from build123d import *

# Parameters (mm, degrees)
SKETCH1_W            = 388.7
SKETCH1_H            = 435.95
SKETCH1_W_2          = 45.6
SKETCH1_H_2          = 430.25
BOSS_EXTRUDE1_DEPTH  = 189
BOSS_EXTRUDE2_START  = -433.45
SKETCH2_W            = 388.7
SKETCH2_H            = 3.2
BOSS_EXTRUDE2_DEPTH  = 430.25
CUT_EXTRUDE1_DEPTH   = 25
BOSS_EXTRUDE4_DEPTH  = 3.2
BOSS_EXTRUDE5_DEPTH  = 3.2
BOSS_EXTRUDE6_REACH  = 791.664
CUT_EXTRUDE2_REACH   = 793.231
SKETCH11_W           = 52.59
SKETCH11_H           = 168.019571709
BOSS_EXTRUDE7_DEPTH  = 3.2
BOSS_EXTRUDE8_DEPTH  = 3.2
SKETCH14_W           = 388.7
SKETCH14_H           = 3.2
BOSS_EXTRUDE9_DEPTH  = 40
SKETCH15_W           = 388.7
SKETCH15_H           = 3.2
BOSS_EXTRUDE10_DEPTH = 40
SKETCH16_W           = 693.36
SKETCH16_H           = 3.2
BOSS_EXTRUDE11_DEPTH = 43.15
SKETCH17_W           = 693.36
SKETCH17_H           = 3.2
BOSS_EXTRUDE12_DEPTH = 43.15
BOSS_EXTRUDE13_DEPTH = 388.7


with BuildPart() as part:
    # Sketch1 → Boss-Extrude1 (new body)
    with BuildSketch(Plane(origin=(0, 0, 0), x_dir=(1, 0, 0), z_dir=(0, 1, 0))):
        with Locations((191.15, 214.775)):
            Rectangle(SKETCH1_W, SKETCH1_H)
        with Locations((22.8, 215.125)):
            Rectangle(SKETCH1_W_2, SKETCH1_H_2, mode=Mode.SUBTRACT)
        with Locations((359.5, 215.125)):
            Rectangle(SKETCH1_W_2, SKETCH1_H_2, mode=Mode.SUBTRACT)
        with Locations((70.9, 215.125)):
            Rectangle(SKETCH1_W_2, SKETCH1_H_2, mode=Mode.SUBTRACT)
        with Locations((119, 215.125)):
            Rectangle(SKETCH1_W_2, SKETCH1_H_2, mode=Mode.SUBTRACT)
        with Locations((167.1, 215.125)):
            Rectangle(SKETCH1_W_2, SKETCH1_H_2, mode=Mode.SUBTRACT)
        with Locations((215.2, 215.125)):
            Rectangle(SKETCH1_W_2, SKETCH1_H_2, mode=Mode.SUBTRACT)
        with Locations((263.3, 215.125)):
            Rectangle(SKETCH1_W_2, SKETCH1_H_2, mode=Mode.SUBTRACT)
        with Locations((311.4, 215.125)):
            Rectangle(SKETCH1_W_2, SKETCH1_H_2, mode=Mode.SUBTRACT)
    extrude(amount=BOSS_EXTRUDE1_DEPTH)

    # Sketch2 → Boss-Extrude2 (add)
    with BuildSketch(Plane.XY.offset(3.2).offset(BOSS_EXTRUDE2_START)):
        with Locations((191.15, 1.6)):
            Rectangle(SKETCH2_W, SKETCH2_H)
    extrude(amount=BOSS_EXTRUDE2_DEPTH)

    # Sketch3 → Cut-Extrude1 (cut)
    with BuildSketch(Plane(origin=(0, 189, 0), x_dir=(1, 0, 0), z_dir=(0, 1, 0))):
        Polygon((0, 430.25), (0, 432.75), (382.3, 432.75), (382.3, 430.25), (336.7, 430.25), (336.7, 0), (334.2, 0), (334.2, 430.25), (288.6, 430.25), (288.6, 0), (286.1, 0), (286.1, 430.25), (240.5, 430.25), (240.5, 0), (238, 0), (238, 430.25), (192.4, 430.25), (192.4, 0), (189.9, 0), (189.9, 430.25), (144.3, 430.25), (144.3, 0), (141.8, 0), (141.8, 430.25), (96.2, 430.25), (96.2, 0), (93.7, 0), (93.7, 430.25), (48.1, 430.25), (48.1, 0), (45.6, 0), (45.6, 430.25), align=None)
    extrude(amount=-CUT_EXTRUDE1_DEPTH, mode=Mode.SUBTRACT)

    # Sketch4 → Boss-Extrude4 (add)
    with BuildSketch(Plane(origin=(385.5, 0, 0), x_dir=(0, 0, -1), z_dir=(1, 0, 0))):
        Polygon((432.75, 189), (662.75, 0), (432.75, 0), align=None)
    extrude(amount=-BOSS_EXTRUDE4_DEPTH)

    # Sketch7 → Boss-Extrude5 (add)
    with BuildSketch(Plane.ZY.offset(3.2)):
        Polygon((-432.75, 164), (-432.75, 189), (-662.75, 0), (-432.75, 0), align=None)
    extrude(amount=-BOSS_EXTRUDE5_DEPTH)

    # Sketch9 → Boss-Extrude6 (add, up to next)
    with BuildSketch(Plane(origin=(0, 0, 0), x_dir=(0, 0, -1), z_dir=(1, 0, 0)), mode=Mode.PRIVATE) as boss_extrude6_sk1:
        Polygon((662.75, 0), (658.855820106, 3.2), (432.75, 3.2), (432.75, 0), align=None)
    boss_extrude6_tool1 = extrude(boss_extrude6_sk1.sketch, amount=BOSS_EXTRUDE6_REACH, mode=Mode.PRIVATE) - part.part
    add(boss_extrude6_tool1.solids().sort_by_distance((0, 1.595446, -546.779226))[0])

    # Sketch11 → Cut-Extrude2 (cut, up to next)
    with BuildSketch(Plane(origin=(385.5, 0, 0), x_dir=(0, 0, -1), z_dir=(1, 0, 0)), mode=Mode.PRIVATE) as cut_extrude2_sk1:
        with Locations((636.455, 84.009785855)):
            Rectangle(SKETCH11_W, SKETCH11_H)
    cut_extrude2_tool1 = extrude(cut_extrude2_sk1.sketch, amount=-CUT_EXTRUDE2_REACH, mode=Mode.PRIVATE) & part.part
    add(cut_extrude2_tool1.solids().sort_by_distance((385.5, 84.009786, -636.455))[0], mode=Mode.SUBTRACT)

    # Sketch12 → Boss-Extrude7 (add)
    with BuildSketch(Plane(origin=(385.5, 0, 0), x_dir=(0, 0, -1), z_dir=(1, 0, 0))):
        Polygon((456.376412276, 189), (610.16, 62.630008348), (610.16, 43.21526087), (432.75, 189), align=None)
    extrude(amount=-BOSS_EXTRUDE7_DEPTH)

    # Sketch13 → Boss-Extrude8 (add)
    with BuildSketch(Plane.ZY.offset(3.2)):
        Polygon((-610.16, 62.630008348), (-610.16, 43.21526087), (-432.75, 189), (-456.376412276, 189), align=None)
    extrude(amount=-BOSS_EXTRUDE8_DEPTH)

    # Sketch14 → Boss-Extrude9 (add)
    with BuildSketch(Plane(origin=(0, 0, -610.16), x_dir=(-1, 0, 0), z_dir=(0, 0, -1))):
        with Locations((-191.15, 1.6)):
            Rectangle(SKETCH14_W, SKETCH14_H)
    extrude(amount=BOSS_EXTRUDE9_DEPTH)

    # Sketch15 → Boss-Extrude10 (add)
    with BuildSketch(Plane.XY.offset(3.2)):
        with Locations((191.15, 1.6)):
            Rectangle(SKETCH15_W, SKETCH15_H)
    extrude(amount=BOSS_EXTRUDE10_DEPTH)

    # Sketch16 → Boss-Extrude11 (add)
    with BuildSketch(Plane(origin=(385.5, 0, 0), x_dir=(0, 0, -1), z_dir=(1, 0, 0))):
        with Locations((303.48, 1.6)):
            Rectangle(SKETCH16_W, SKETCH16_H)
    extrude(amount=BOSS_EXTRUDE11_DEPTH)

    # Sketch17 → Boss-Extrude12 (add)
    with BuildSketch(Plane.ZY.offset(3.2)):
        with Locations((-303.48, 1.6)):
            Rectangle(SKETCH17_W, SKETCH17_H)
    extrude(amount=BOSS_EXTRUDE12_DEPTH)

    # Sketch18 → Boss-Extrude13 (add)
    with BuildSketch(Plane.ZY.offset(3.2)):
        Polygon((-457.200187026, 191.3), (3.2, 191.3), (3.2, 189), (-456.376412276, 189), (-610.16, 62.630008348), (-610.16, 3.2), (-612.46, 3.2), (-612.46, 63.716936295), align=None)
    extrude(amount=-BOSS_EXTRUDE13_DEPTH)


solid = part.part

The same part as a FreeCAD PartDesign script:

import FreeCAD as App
import Part
import Sketcher
from FreeCAD import Vector
Q = App.Units.Quantity


def add_polygon(sketch, points):
    """Adds a closed chain of lines whose ends are joined by coincident constraints."""
    first, n = sketch.GeometryCount, len(points)
    for a, b in zip(points, points[1:] + points[:1]):
        sketch.addGeometry(Part.LineSegment(App.Vector(*a, 0), App.Vector(*b, 0)), False)
    for i in range(n):
        sketch.addConstraint(Sketcher.Constraint("Coincident", first + i, 2, first + (i + 1) % n, 1))

doc = App.newDocument("Part")
body = doc.addObject("PartDesign::Body", "Body")

# Sketch on XZ plane
sketch1 = body.newObject("Sketcher::SketchObject", "Sketch")
sketch1.AttachmentSupport = (doc.getObject("XZ_Plane"), [""])
sketch1.MapMode = "FlatFace"
add_polygon(sketch1, [(-3, -433), (-3, 3), (386, 3), (386, -433)])  # lines 0-3
add_polygon(sketch1, [(46, 0), (0, 0), (0, -430), (46, -430)])  # lines 4-7
add_polygon(sketch1, [(94, 0), (48, 0), (48, -430), (94, -430)])  # lines 8-11
add_polygon(sketch1, [(142, 0), (96, 0), (96, -430), (142, -430)])  # lines 12-15
add_polygon(sketch1, [(190, 0), (144, 0), (144, -430), (190, -430)])  # lines 16-19
add_polygon(sketch1, [(238, 0), (192, 0), (192, -430), (238, -430)])  # lines 20-23
add_polygon(sketch1, [(286, 0), (240, 0), (240, -430), (286, -430)])  # lines 24-27
add_polygon(sketch1, [(334, 0), (289, 0), (289, -430), (334, -430)])  # lines 28-31
add_polygon(sketch1, [(382, 0), (337, 0), (337, -430), (382, -430)])  # lines 32-35
sketch1.addConstraint([
    Sketcher.Constraint("Vertical", 0),
    Sketcher.Constraint("Horizontal", 1),
    Sketcher.Constraint("Vertical", 2),
    Sketcher.Constraint("Horizontal", 3),
    Sketcher.Constraint("Horizontal", 4),
    Sketcher.Constraint("Vertical", 5),
    Sketcher.Constraint("Horizontal", 6),
    Sketcher.Constraint("Vertical", 7),
    Sketcher.Constraint("Horizontal", 8),
    Sketcher.Constraint("Vertical", 9),
    Sketcher.Constraint("Horizontal", 10),
    Sketcher.Constraint("Vertical", 11),
    Sketcher.Constraint("Horizontal", 12),
    Sketcher.Constraint("Vertical", 13),
    Sketcher.Constraint("Horizontal", 14),
    Sketcher.Constraint("Vertical", 15),
    Sketcher.Constraint("Horizontal", 16),
    Sketcher.Constraint("Vertical", 17),
    Sketcher.Constraint("Horizontal", 18),
    Sketcher.Constraint("Vertical", 19),
    Sketcher.Constraint("Horizontal", 20),
    Sketcher.Constraint("Vertical", 21),
    Sketcher.Constraint("Horizontal", 22),
    Sketcher.Constraint("Vertical", 23),
    Sketcher.Constraint("Horizontal", 24),
    Sketcher.Constraint("Vertical", 25),
    Sketcher.Constraint("Horizontal", 26),
    Sketcher.Constraint("Vertical", 27),
    Sketcher.Constraint("Horizontal", 28),
    Sketcher.Constraint("Vertical", 29),
    Sketcher.Constraint("Horizontal", 30),
    Sketcher.Constraint("Vertical", 31),
    Sketcher.Constraint("Horizontal", 32),
    Sketcher.Constraint("Vertical", 33),
    Sketcher.Constraint("Horizontal", 34),
    Sketcher.Constraint("Vertical", 35),
    Sketcher.Constraint("Coincident", 4, 2, -1, 1),
    Sketcher.Constraint("PointOnObject", 8, 2, -1),
    Sketcher.Constraint("PointOnObject", 12, 2, -1),
    Sketcher.Constraint("PointOnObject", 16, 2, -1),
    Sketcher.Constraint("PointOnObject", 20, 2, -1),
    Sketcher.Constraint("PointOnObject", 24, 2, -1),
    Sketcher.Constraint("PointOnObject", 28, 2, -1),
    Sketcher.Constraint("PointOnObject", 32, 2, -1),
    Sketcher.Constraint("Horizontal", 6, 2, 9, 2),
    Sketcher.Constraint("Horizontal", 10, 2, 13, 2),
    Sketcher.Constraint("Horizontal", 14, 2, 17, 2),
    Sketcher.Constraint("Horizontal", 18, 2, 21, 2),
    Sketcher.Constraint("Horizontal", 22, 2, 25, 2),
    Sketcher.Constraint("Horizontal", 26, 2, 29, 2),
    Sketcher.Constraint("Horizontal", 30, 2, 33, 2),
    Sketcher.Constraint("Equal", 6, 8),
    Sketcher.Constraint("Equal", 10, 12),
    Sketcher.Constraint("Equal", 14, 16),
    Sketcher.Constraint("Equal", 18, 20),
    Sketcher.Constraint("Equal", 22, 24),
    Sketcher.Constraint("Equal", 26, 28),
    Sketcher.Constraint("Equal", 30, 32),
    Sketcher.Constraint("DistanceX", 1, 1, 1, 2, Q("388.7 mm")),
    Sketcher.Constraint("DistanceX", 4, 2, 4, 1, Q("45.6 mm")),
    Sketcher.Constraint("DistanceX", -1, 1, 22, 2, Q("238 mm")),
    Sketcher.Constraint("DistanceY", 0, 1, 0, 2, Q("435.95 mm")),
    Sketcher.Constraint("DistanceY", 5, 2, 5, 1, Q("430.25 mm")),
    Sketcher.Constraint("DistanceX", 0, 2, -1, 1, Q("3.2 mm")),
    Sketcher.Constraint("DistanceY", -1, 1, 0, 2, Q("3.2 mm")),
    Sketcher.Constraint("DistanceX", -1, 1, 8, 2, Q("48.1 mm")),
    Sketcher.Constraint("DistanceX", -1, 1, 12, 2, Q("96.2 mm")),
    Sketcher.Constraint("DistanceX", -1, 1, 16, 2, Q("144.3 mm")),
    Sketcher.Constraint("DistanceX", -1, 1, 24, 2, Q("240.5 mm")),
    Sketcher.Constraint("DistanceX", -1, 1, 28, 2, Q("288.6 mm")),
    Sketcher.Constraint("DistanceX", -1, 1, 32, 2, Q("336.7 mm")),
])
pad1 = body.newObject("PartDesign::Pad", "Pad")
pad1.Profile = sketch1
pad1.Length = 189
pad1.Reversed = True

# Sketch on XY plane
sketch2 = body.newObject("Sketcher::SketchObject", "Sketch001")
sketch2.AttachmentSupport = (doc.getObject("XY_Plane"), [""])
sketch2.MapMode = "FlatFace"
sketch2.AttachmentOffset = App.Placement(Vector(0, 0, -430.25), App.Rotation())
add_polygon(sketch2, [(-3.2, 3.2), (-3.2, 0), (385.5, 0), (385.5, 3.2)])  # lines 0-3
sketch2.addConstraint([
    Sketcher.Constraint("Vertical", 0),
    Sketcher.Constraint("Horizontal", 1),
    Sketcher.Constraint("Vertical", 2),
    Sketcher.Constraint("Horizontal", 3),
    Sketcher.Constraint("PointOnObject", 0, 2, -1),
    Sketcher.Constraint("DistanceX", 1, 1, 1, 2, Q("388.7 mm")),
    Sketcher.Constraint("DistanceY", 0, 2, 0, 1, Q("3.2 mm")),
    Sketcher.Constraint("DistanceX", 0, 2, -1, 1, Q("3.2 mm")),
])
pad2 = body.newObject("PartDesign::Pad", "Pad001")
pad2.Profile = sketch2
pad2.Length = 430.25

# Sketch on XZ plane
sketch3 = body.newObject("Sketcher::SketchObject", "Sketch002")
sketch3.AttachmentSupport = (doc.getObject("XZ_Plane"), [""])
sketch3.MapMode = "FlatFace"
sketch3.AttachmentOffset = App.Placement(Vector(0, 0, -189), App.Rotation())
add_polygon(sketch3, [(0, -432.8), (0, -430.2), (45.6, -430.2), (45.6, 0), (48.1, 0), (48.1, -430.2), (93.7, -430.2), (93.7, 0), (96.2, 0), (96.2, -430.2), (141.8, -430.2), (141.8, 0), (144.3, 0), (144.3, -430.2), (189.9, -430.2), (189.9, 0), (192.4, 0), (192.4, -430.2), (238, -430.2), (238, 0), (240.5, 0), (240.5, -430.2), (286.1, -430.2), (286.1, 0), (288.6, 0), (288.6, -430.2), (334.2, -430.2), (334.2, 0), (336.7, 0), (336.7, -430.2), (382.3, -430.2), (382.3, -432.8)])  # lines 0-31
sketch3.addConstraint([
    Sketcher.Constraint("Vertical", 0),
    Sketcher.Constraint("Horizontal", 1),
    Sketcher.Constraint("Vertical", 2),
    Sketcher.Constraint("Horizontal", 3),
    Sketcher.Constraint("Vertical", 4),
    Sketcher.Constraint("Horizontal", 5),
    Sketcher.Constraint("Vertical", 6),
    Sketcher.Constraint("Horizontal", 7),
    Sketcher.Constraint("Vertical", 8),
    Sketcher.Constraint("Horizontal", 9),
    Sketcher.Constraint("Vertical", 10),
    Sketcher.Constraint("Horizontal", 11),
    Sketcher.Constraint("Vertical", 12),
    Sketcher.Constraint("Horizontal", 13),
    Sketcher.Constraint("Vertical", 14),
    Sketcher.Constraint("Horizontal", 15),
    Sketcher.Constraint("Vertical", 16),
    Sketcher.Constraint("Horizontal", 17),
    Sketcher.Constraint("Vertical", 18),
    Sketcher.Constraint("Horizontal", 19),
    Sketcher.Constraint("Vertical", 20),
    Sketcher.Constraint("Horizontal", 21),
    Sketcher.Constraint("Vertical", 22),
    Sketcher.Constraint("Horizontal", 23),
    Sketcher.Constraint("Vertical", 24),
    Sketcher.Constraint("Horizontal", 25),
    Sketcher.Constraint("Vertical", 26),
    Sketcher.Constraint("Horizontal", 27),
    Sketcher.Constraint("Vertical", 28),
    Sketcher.Constraint("Horizontal", 29),
    Sketcher.Constraint("Vertical", 30),
    Sketcher.Constraint("Horizontal", 31),
    Sketcher.Constraint("PointOnObject", 0, 2, -2),
    Sketcher.Constraint("PointOnObject", 2, 2, -1),
    Sketcher.Constraint("PointOnObject", 6, 2, -1),
    Sketcher.Constraint("PointOnObject", 10, 2, -1),
    Sketcher.Constraint("PointOnObject", 14, 2, -1),
    Sketcher.Constraint("PointOnObject", 18, 2, -1),
    Sketcher.Constraint("PointOnObject", 22, 2, -1),
    Sketcher.Constraint("PointOnObject", 26, 2, -1),
    Sketcher.Constraint("Horizontal", 1, 2, 4, 2),
    Sketcher.Constraint("Horizontal", 5, 2, 8, 2),
    Sketcher.Constraint("Horizontal", 9, 2, 12, 2),
    Sketcher.Constraint("Horizontal", 13, 2, 16, 2),
    Sketcher.Constraint("Horizontal", 17, 2, 20, 2),
    Sketcher.Constraint("Horizontal", 21, 2, 24, 2),
    Sketcher.Constraint("Horizontal", 25, 2, 28, 2),
    Sketcher.Constraint("Equal", 1, 5),
    Sketcher.Constraint("Equal", 3, 7),
    Sketcher.Constraint("Equal", 5, 9),
    Sketcher.Constraint("Equal", 7, 11),
    Sketcher.Constraint("Equal", 9, 13),
    Sketcher.Constraint("Equal", 11, 15),
    Sketcher.Constraint("Equal", 13, 17),
    Sketcher.Constraint("Equal", 15, 19),
    Sketcher.Constraint("Equal", 17, 21),
    Sketcher.Constraint("Equal", 19, 23),
    Sketcher.Constraint("Equal", 21, 25),
    Sketcher.Constraint("Equal", 23, 27),
    Sketcher.Constraint("Equal", 25, 29),
    Sketcher.Constraint("Equal", 27, 0),
    Sketcher.Constraint("DistanceX", 1, 1, 1, 2, Q("45.6 mm")),
    Sketcher.Constraint("DistanceX", 3, 1, 3, 2, Q("2.5 mm")),
    Sketcher.Constraint("DistanceY", 2, 1, 2, 2, Q("430.25 mm")),
])
pocket1 = body.newObject("PartDesign::Pocket", "Pocket")
pocket1.Profile = sketch3
pocket1.Length = 25
pocket1.Reversed = True

# Sketch on YZ plane
sketch4 = body.newObject("Sketcher::SketchObject", "Sketch003")
sketch4.AttachmentSupport = (doc.getObject("YZ_Plane"), [""])
sketch4.MapMode = "FlatFace"
sketch4.AttachmentOffset = App.Placement(Vector(0, 0, 385.5), App.Rotation())
add_polygon(sketch4, [(0, -663), (189, -433), (0, -433)])  # lines 0-2
sketch4.addConstraint([
    Sketcher.Constraint("Horizontal", 1),
    Sketcher.Constraint("Vertical", 2),
    Sketcher.Constraint("PointOnObject", 1, 2, -2),
    Sketcher.Constraint("DistanceX", 1, 2, 1, 1, Q("189 mm")),
    Sketcher.Constraint("DistanceY", 2, 2, 2, 1, Q("230 mm")),
    Sketcher.Constraint("DistanceY", 0, 2, -1, 1, Q("432.75 mm")),
])
pad3 = body.newObject("PartDesign::Pad", "Pad002")
pad3.Profile = sketch4
pad3.Length = 3.2
pad3.Reversed = True

# Sketch on YZ plane
sketch5 = body.newObject("Sketcher::SketchObject", "Sketch004")
sketch5.AttachmentSupport = (doc.getObject("YZ_Plane"), [""])
sketch5.MapMode = "FlatFace"
sketch5.AttachmentOffset = App.Placement(Vector(0, 0, -3.2), App.Rotation())
add_polygon(sketch5, [(189, -433), (0, -663), (0, -433)])  # lines 0-2
sketch5.addConstraint([
    Sketcher.Constraint("Vertical", 1),
    Sketcher.Constraint("Horizontal", 2),
    Sketcher.Constraint("PointOnObject", 0, 2, -2),
    Sketcher.Constraint("DistanceX", 2, 1, 2, 2, Q("189 mm")),
    Sketcher.Constraint("DistanceY", 1, 1, 1, 2, Q("230 mm")),
    Sketcher.Constraint("DistanceY", 0, 2, -1, 1, Q("662.75 mm")),
])
pad4 = body.newObject("PartDesign::Pad", "Pad003")
pad4.Profile = sketch5
pad4.Length = 3.2

# Sketch on YZ plane
sketch6 = body.newObject("Sketcher::SketchObject", "Sketch005")
sketch6.AttachmentSupport = (doc.getObject("YZ_Plane"), [""])
sketch6.MapMode = "FlatFace"
add_polygon(sketch6, [(0, -662.8), (3.2, -658.9), (3.2, -432.8), (0, -432.8)])  # lines 0-3
sketch6.addConstraint([
    Sketcher.Constraint("Vertical", 1),
    Sketcher.Constraint("Horizontal", 2),
    Sketcher.Constraint("Vertical", 3),
    Sketcher.Constraint("PointOnObject", 2, 2, -2),
    Sketcher.Constraint("DistanceY", 3, 2, 3, 1, Q("230 mm")),
    Sketcher.Constraint("DistanceX", 2, 2, 2, 1, Q("3.2 mm")),
    Sketcher.Constraint("DistanceY", 1, 2, -1, 1, Q("432.75 mm")),
    Sketcher.Constraint("Distance", 0, Q("5.040301 mm")),
])
pad5 = body.newObject("PartDesign::Pad", "Pad004")
pad5.Profile = sketch6
pad5.Type = "UpToFirst"

# Sketch on YZ plane
sketch7 = body.newObject("Sketcher::SketchObject", "Sketch006")
sketch7.AttachmentSupport = (doc.getObject("YZ_Plane"), [""])
sketch7.MapMode = "FlatFace"
sketch7.AttachmentOffset = App.Placement(Vector(0, 0, 385.5), App.Rotation())
add_polygon(sketch7, [(168, -610), (0, -610), (0, -663), (168, -663)])  # lines 0-3
sketch7.addConstraint([
    Sketcher.Constraint("Horizontal", 0),
    Sketcher.Constraint("Vertical", 1),
    Sketcher.Constraint("Horizontal", 2),
    Sketcher.Constraint("Vertical", 3),
    Sketcher.Constraint("PointOnObject", 0, 2, -2),
    Sketcher.Constraint("DistanceY", 1, 2, 1, 1, Q("52.59 mm")),
    Sketcher.Constraint("DistanceY", 0, 2, -1, 1, Q("610.16 mm")),
    Sketcher.Constraint("DistanceX", 0, 2, 0, 1, Q("168.019572 mm")),
])
pocket2 = body.newObject("PartDesign::Pocket", "Pocket001")
pocket2.Profile = sketch7
pocket2.Length = 388.7

# Sketch on YZ plane
sketch8 = body.newObject("Sketcher::SketchObject", "Sketch007")
sketch8.AttachmentSupport = (doc.getObject("YZ_Plane"), [""])
sketch8.MapMode = "FlatFace"
sketch8.AttachmentOffset = App.Placement(Vector(0, 0, 385.5), App.Rotation())
add_polygon(sketch8, [(63, -610), (189, -456), (189, -433), (43, -610)])  # lines 0-3
sketch8.addConstraint([
    Sketcher.Constraint("Vertical", 1),
    Sketcher.Constraint("Horizontal", 3),
    Sketcher.Constraint("Parallel", 0, 2),
    Sketcher.Constraint("DistanceX", -1, 1, 0, 2, Q("189 mm")),
    Sketcher.Constraint("DistanceY", 1, 2, -1, 1, Q("432.75 mm")),
    Sketcher.Constraint("DistanceY", 2, 2, -1, 1, Q("610.16 mm")),
    Sketcher.Constraint("Distance", 2, Q("229.62469 mm")),
    Sketcher.Constraint("DistanceX", 3, 1, 3, 2, Q("19.414747 mm")),
])
pad6 = body.newObject("PartDesign::Pad", "Pad005")
pad6.Profile = sketch8
pad6.Length = 3.2
pad6.Reversed = True

# Sketch on YZ plane
sketch9 = body.newObject("Sketcher::SketchObject", "Sketch008")
sketch9.AttachmentSupport = (doc.getObject("YZ_Plane"), [""])
sketch9.MapMode = "FlatFace"
sketch9.AttachmentOffset = App.Placement(Vector(0, 0, -3.2), App.Rotation())
add_polygon(sketch9, [(63, -610), (43, -610), (189, -433), (189, -456)])  # lines 0-3
sketch9.addConstraint([
    Sketcher.Constraint("Horizontal", 0),
    Sketcher.Constraint("Vertical", 2),
    Sketcher.Constraint("Parallel", 1, 3),
    Sketcher.Constraint("DistanceX", -1, 1, 1, 2, Q("189 mm")),
    Sketcher.Constraint("DistanceY", 0, 2, -1, 1, Q("610.16 mm")),
    Sketcher.Constraint("DistanceY", 1, 2, -1, 1, Q("432.75 mm")),
    Sketcher.Constraint("Distance", 1, Q("229.62469 mm")),
    Sketcher.Constraint("DistanceX", 0, 2, 0, 1, Q("19.414747 mm")),
])
pad7 = body.newObject("PartDesign::Pad", "Pad006")
pad7.Profile = sketch9
pad7.Length = 3.2

# Sketch on XY plane
sketch10 = body.newObject("Sketcher::SketchObject", "Sketch009")
sketch10.AttachmentSupport = (doc.getObject("XY_Plane"), [""])
sketch10.MapMode = "FlatFace"
sketch10.AttachmentOffset = App.Placement(Vector(0, 0, -610.16), App.Rotation())
add_polygon(sketch10, [(385.5, 3.2), (385.5, 0), (-3.2, 0), (-3.2, 3.2)])  # lines 0-3
sketch10.addConstraint([
    Sketcher.Constraint("Vertical", 0),
    Sketcher.Constraint("Horizontal", 1),
    Sketcher.Constraint("Vertical", 2),
    Sketcher.Constraint("Horizontal", 3),
    Sketcher.Constraint("PointOnObject", 0, 2, -1),
    Sketcher.Constraint("DistanceX", 1, 2, 1, 1, Q("388.7 mm")),
    Sketcher.Constraint("DistanceY", 0, 2, 0, 1, Q("3.2 mm")),
    Sketcher.Constraint("DistanceX", -1, 1, 0, 2, Q("385.5 mm")),
])
pad8 = body.newObject("PartDesign::Pad", "Pad007")
pad8.Profile = sketch10
pad8.Length = 40
pad8.Reversed = True

# Sketch on XY plane
sketch11 = body.newObject("Sketcher::SketchObject", "Sketch010")
sketch11.AttachmentSupport = (doc.getObject("XY_Plane"), [""])
sketch11.MapMode = "FlatFace"
sketch11.AttachmentOffset = App.Placement(Vector(0, 0, 3.2), App.Rotation())
add_polygon(sketch11, [(-3.2, 3.2), (-3.2, 0), (385.5, 0), (385.5, 3.2)])  # lines 0-3
sketch11.addConstraint([
    Sketcher.Constraint("Vertical", 0),
    Sketcher.Constraint("Horizontal", 1),
    Sketcher.Constraint("Vertical", 2),
    Sketcher.Constraint("Horizontal", 3),
    Sketcher.Constraint("PointOnObject", 0, 2, -1),
    Sketcher.Constraint("DistanceX", 1, 1, 1, 2, Q("388.7 mm")),
    Sketcher.Constraint("DistanceY", 0, 2, 0, 1, Q("3.2 mm")),
    Sketcher.Constraint("DistanceX", 0, 2, -1, 1, Q("3.2 mm")),
])
pad9 = body.newObject("PartDesign::Pad", "Pad008")
pad9.Profile = sketch11
pad9.Length = 40

# Sketch on YZ plane
sketch12 = body.newObject("Sketcher::SketchObject", "Sketch011")
sketch12.AttachmentSupport = (doc.getObject("YZ_Plane"), [""])
sketch12.MapMode = "FlatFace"
sketch12.AttachmentOffset = App.Placement(Vector(0, 0, 385.5), App.Rotation())
add_polygon(sketch12, [(3.2, 43.2), (0, 43.2), (0, -650.2), (3.2, -650.2)])  # lines 0-3
sketch12.addConstraint([
    Sketcher.Constraint("Horizontal", 0),
    Sketcher.Constraint("Vertical", 1),
    Sketcher.Constraint("Horizontal", 2),
    Sketcher.Constraint("Vertical", 3),
    Sketcher.Constraint("PointOnObject", 0, 2, -2),
    Sketcher.Constraint("DistanceX", 0, 2, 0, 1, Q("3.2 mm")),
    Sketcher.Constraint("DistanceY", 1, 2, 1, 1, Q("693.36 mm")),
    Sketcher.Constraint("DistanceY", -1, 1, 0, 2, Q("43.2 mm")),
])
pad10 = body.newObject("PartDesign::Pad", "Pad009")
pad10.Profile = sketch12
pad10.Length = 43.15

# Sketch on YZ plane
sketch13 = body.newObject("Sketcher::SketchObject", "Sketch012")
sketch13.AttachmentSupport = (doc.getObject("YZ_Plane"), [""])
sketch13.MapMode = "FlatFace"
sketch13.AttachmentOffset = App.Placement(Vector(0, 0, -3.2), App.Rotation())
add_polygon(sketch13, [(3.2, -650.2), (0, -650.2), (0, 43.2), (3.2, 43.2)])  # lines 0-3
sketch13.addConstraint([
    Sketcher.Constraint("Horizontal", 0),
    Sketcher.Constraint("Vertical", 1),
    Sketcher.Constraint("Horizontal", 2),
    Sketcher.Constraint("Vertical", 3),
    Sketcher.Constraint("PointOnObject", 0, 2, -2),
    Sketcher.Constraint("DistanceX", 0, 2, 0, 1, Q("3.2 mm")),
    Sketcher.Constraint("DistanceY", 1, 1, 1, 2, Q("693.36 mm")),
    Sketcher.Constraint("DistanceY", -1, 1, 1, 2, Q("43.2 mm")),
])
pad11 = body.newObject("PartDesign::Pad", "Pad010")
pad11.Profile = sketch13
pad11.Length = 43.15
pad11.Reversed = True

# Sketch on YZ plane
sketch14 = body.newObject("Sketcher::SketchObject", "Sketch013")
sketch14.AttachmentSupport = (doc.getObject("YZ_Plane"), [""])
sketch14.MapMode = "FlatFace"
sketch14.AttachmentOffset = App.Placement(Vector(0, 0, -3.2), App.Rotation())
add_polygon(sketch14, [(191.3, 3.2), (191.3, -457.2), (63.7, -612.5), (3.2, -612.5), (3.2, -610.2), (62.6, -610.2), (189, -456.4), (189, 3.2)])  # lines 0-7
sketch14.addConstraint([
    Sketcher.Constraint("Vertical", 0),
    Sketcher.Constraint("Horizontal", 2),
    Sketcher.Constraint("Vertical", 3),
    Sketcher.Constraint("Horizontal", 4),
    Sketcher.Constraint("Vertical", 6),
    Sketcher.Constraint("Horizontal", 7),
    Sketcher.Constraint("Parallel", 1, 5),
    Sketcher.Constraint("Equal", 7, 3),
    Sketcher.Constraint("DistanceX", 7, 1, 7, 2, Q("2.3 mm")),
    Sketcher.Constraint("DistanceX", -1, 1, 5, 2, Q("189 mm")),
    Sketcher.Constraint("DistanceX", -1, 1, 2, 2, Q("3.2 mm")),
    Sketcher.Constraint("DistanceY", -1, 1, 6, 2, Q("3.2 mm")),
    Sketcher.Constraint("DistanceY", 1, 2, -1, 1, Q("612.46 mm")),
    Sketcher.Constraint("DistanceX", 4, 1, 4, 2, Q("59.430008 mm")),
    Sketcher.Constraint("DistanceX", 2, 2, 2, 1, Q("60.516936 mm")),
    Sketcher.Constraint("DistanceY", 0, 2, 0, 1, Q("460.400187 mm")),
])
pad12 = body.newObject("PartDesign::Pad", "Pad011")
pad12.Profile = sketch14
pad12.Length = 388.7

doc.recompute()
